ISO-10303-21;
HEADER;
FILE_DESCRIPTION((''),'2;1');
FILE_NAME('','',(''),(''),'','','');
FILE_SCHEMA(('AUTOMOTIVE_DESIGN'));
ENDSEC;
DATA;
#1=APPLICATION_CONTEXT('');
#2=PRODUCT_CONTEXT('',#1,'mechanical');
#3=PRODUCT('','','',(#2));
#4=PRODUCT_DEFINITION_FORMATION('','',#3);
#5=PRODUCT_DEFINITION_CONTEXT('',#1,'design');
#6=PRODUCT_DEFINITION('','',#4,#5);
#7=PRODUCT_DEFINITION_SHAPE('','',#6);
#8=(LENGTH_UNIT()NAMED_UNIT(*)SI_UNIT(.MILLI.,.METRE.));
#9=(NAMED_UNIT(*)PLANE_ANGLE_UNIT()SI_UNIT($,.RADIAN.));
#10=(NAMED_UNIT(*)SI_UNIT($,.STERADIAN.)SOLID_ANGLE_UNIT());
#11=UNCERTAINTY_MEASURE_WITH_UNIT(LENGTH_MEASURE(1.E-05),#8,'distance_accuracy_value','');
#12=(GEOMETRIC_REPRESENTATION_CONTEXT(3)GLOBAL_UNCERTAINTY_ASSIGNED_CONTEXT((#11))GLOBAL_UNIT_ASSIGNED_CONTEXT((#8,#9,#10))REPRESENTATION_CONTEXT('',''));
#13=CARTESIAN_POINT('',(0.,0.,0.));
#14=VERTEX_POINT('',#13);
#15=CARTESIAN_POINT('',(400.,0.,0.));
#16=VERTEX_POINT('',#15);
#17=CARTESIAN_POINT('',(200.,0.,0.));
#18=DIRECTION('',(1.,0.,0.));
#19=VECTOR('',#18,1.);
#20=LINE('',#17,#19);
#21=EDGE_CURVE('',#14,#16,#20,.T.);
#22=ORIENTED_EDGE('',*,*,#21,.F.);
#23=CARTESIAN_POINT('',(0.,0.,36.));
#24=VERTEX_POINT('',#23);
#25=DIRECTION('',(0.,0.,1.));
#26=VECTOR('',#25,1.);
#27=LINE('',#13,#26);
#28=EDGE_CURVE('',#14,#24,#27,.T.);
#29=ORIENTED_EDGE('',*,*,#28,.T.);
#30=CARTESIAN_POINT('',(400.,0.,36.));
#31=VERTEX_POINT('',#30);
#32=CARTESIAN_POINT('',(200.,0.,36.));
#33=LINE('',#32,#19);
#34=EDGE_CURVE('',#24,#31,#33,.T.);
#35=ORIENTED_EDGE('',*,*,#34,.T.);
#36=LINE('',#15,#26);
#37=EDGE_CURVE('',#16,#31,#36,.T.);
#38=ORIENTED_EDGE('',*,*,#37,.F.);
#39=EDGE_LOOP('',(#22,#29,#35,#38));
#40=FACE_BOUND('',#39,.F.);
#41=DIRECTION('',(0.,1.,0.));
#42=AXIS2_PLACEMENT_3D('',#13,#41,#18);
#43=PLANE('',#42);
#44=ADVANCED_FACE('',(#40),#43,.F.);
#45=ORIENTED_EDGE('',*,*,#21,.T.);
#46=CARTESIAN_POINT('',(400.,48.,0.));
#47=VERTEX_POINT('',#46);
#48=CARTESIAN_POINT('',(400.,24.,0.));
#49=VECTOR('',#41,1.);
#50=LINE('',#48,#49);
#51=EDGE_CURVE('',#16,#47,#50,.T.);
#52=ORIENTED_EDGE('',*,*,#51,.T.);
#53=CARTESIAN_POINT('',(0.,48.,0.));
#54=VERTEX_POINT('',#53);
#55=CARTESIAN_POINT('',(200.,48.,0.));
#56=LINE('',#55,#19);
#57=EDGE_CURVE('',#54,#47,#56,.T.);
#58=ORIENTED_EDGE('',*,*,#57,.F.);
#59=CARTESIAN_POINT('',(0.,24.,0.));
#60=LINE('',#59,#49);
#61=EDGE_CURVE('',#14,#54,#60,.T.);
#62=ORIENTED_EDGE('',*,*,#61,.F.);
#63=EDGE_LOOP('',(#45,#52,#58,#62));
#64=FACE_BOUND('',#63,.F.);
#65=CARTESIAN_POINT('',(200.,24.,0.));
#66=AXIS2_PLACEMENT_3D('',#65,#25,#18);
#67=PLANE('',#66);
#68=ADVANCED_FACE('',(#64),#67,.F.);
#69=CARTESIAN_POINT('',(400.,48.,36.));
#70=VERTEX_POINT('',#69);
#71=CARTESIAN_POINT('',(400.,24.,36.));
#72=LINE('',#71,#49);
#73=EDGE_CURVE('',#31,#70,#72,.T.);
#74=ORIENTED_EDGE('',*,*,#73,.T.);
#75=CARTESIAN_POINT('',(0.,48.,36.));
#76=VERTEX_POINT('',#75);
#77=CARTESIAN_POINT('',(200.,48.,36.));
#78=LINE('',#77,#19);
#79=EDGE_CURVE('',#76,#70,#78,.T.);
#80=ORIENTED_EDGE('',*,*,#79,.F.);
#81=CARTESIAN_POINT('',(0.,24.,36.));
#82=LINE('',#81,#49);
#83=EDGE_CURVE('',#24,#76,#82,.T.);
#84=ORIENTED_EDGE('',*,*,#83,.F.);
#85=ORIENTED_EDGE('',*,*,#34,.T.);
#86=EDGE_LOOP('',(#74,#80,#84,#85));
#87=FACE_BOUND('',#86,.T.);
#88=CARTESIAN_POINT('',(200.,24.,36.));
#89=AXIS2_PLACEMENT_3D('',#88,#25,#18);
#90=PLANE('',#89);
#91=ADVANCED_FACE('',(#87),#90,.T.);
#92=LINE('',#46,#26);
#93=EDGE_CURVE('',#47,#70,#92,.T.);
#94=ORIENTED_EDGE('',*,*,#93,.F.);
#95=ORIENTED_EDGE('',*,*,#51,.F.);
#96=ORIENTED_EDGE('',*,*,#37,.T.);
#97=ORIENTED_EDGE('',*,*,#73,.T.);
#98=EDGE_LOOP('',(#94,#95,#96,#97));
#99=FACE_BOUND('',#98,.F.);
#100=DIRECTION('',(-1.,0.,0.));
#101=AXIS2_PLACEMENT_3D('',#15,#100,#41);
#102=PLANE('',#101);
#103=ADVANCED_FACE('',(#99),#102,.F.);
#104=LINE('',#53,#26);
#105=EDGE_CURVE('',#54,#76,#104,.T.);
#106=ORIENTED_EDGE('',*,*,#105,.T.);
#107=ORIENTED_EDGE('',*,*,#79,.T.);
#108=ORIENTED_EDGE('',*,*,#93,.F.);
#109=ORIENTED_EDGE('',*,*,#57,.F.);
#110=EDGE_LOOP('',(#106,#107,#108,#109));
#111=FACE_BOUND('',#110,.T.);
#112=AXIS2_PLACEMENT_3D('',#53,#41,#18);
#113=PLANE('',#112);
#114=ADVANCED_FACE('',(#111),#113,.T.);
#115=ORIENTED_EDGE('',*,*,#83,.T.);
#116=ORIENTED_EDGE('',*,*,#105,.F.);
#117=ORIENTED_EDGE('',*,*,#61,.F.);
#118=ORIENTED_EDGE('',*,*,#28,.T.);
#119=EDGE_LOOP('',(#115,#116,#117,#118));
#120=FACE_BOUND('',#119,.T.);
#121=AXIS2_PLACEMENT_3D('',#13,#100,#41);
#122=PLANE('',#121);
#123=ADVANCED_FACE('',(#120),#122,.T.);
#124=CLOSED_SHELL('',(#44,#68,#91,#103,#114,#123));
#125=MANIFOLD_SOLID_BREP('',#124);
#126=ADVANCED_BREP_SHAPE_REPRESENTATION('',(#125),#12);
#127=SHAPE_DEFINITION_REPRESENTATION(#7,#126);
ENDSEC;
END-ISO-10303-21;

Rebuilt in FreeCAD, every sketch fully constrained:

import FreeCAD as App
import Part
import Sketcher
Q = App.Units.Quantity

doc = App.newDocument("Part")
params = doc.addObject("Spreadsheet::Sheet", "Params")
for row, (alias, value) in enumerate([
    ("sketch1_width", "400 mm"),
    ("sketch1_height", "48 mm"),
    ("pad1_length", "36 mm"),
], start=1):
    params.set(f"A{row}", alias)
    params.set(f"B{row}", "=" + value)
    params.setAlias(f"B{row}", alias)

body = doc.addObject("PartDesign::Body", "Body")

sketch1 = doc.addObject("Sketcher::SketchObject", "Sketch")
body.addObject(sketch1)
sketch1.AttachmentSupport = (doc.XY_Plane, [""])
sketch1.MapMode = "FlatFace"
sketch1.addGeometry([
    Part.LineSegment(App.Vector(0, 48, 0), App.Vector(0, 0, 0)),
    Part.LineSegment(App.Vector(0, 0, 0), App.Vector(400, 0, 0)),
    Part.LineSegment(App.Vector(400, 0, 0), App.Vector(400, 48, 0)),
    Part.LineSegment(App.Vector(400, 48, 0), App.Vector(0, 48, 0)),
], False)
sketch1.addConstraint([
    Sketcher.Constraint("Coincident", 0, 2, 1, 1),
    Sketcher.Constraint("Coincident", 1, 2, 2, 1),
    Sketcher.Constraint("Coincident", 2, 2, 3, 1),
    Sketcher.Constraint("Coincident", 3, 2, 0, 1),
    Sketcher.Constraint("Vertical", 0),
    Sketcher.Constraint("Horizontal", 1),
    Sketcher.Constraint("Vertical", 2),
    Sketcher.Constraint("Horizontal", 3),
    Sketcher.Constraint("Coincident", 0, 2, -1, 1),
    Sketcher.Constraint("DistanceX", 1, 1, 1, 2, Q("400 mm")),
    Sketcher.Constraint("DistanceY", 0, 2, 0, 1, Q("48 mm")),
])
sketch1.setExpression("Constraints[9]", "Params.sketch1_width")
sketch1.setExpression("Constraints[10]", "Params.sketch1_height")
pad1 = doc.addObject("PartDesign::Pad", "Pad")
body.addObject(pad1)
pad1.Profile = sketch1
pad1.setExpression("Length", "Params.pad1_length")

doc.recompute()
